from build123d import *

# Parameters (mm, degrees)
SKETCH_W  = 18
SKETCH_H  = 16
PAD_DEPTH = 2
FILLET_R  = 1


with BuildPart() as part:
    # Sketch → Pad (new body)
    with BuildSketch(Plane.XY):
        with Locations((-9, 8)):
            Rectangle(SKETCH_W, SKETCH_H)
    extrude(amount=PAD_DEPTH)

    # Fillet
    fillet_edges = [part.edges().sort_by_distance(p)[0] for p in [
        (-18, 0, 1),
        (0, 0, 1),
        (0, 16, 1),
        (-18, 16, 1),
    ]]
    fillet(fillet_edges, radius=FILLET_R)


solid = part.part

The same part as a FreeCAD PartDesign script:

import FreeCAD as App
import Part
import Sketcher
Q = App.Units.Quantity


def edges_at(feature, points):
    """Names of the edges that pass closest to the given points."""
    edges = feature.Shape.Edges
    near = lambda p: min(range(len(edges)), key=lambda i: edges[i].distToShape(Part.Vertex(*p))[0])
    return sorted({f"Edge{near(p) + 1}" for p in points})

doc = App.newDocument("Part")
body = doc.addObject("PartDesign::Body", "Body")

sketch1 = body.newObject("Sketcher::SketchObject", "Sketch")
sketch1.AttachmentSupport = (doc.getObject("XY_Plane"), [""])
sketch1.MapMode = "FlatFace"
sketch1.addGeometry([
    Part.LineSegment(App.Vector(-18, 16, 0), App.Vector(-18, 0, 0)),
    Part.LineSegment(App.Vector(-18, 0, 0), App.Vector(0, 0, 0)),
    Part.LineSegment(App.Vector(0, 0, 0), App.Vector(0, 16, 0)),
    Part.LineSegment(App.Vector(0, 16, 0), App.Vector(-18, 16, 0)),
], False)
sketch1.addConstraint([
    Sketcher.Constraint("Coincident", 0, 2, 1, 1),
    Sketcher.Constraint("Coincident", 1, 2, 2, 1),
    Sketcher.Constraint("Coincident", 2, 2, 3, 1),
    Sketcher.Constraint("Coincident", 3, 2, 0, 1),
    Sketcher.Constraint("Vertical", 0),
    Sketcher.Constraint("Horizontal", 1),
    Sketcher.Constraint("Vertical", 2),
    Sketcher.Constraint("Horizontal", 3),
    Sketcher.Constraint("Coincident", 1, 2, -1, 1),
    Sketcher.Constraint("DistanceX", 1, 1, 1, 2, Q("18 mm")),
    Sketcher.Constraint("DistanceY", 0, 2, 0, 1, Q("16 mm")),
])
pad1 = body.newObject("PartDesign::Pad", "Pad")
pad1.Profile = sketch1
pad1.Length = 2
doc.recompute()

fillet = body.newObject("PartDesign::Fillet", "Fillet")
fillet.Base = (pad1, edges_at(pad1, [
    (-18, 0, 1),
    (0, 0, 1),
    (0, 16, 1),
    (-18, 16, 1),
]))
fillet.Radius = 1

doc.recompute()
